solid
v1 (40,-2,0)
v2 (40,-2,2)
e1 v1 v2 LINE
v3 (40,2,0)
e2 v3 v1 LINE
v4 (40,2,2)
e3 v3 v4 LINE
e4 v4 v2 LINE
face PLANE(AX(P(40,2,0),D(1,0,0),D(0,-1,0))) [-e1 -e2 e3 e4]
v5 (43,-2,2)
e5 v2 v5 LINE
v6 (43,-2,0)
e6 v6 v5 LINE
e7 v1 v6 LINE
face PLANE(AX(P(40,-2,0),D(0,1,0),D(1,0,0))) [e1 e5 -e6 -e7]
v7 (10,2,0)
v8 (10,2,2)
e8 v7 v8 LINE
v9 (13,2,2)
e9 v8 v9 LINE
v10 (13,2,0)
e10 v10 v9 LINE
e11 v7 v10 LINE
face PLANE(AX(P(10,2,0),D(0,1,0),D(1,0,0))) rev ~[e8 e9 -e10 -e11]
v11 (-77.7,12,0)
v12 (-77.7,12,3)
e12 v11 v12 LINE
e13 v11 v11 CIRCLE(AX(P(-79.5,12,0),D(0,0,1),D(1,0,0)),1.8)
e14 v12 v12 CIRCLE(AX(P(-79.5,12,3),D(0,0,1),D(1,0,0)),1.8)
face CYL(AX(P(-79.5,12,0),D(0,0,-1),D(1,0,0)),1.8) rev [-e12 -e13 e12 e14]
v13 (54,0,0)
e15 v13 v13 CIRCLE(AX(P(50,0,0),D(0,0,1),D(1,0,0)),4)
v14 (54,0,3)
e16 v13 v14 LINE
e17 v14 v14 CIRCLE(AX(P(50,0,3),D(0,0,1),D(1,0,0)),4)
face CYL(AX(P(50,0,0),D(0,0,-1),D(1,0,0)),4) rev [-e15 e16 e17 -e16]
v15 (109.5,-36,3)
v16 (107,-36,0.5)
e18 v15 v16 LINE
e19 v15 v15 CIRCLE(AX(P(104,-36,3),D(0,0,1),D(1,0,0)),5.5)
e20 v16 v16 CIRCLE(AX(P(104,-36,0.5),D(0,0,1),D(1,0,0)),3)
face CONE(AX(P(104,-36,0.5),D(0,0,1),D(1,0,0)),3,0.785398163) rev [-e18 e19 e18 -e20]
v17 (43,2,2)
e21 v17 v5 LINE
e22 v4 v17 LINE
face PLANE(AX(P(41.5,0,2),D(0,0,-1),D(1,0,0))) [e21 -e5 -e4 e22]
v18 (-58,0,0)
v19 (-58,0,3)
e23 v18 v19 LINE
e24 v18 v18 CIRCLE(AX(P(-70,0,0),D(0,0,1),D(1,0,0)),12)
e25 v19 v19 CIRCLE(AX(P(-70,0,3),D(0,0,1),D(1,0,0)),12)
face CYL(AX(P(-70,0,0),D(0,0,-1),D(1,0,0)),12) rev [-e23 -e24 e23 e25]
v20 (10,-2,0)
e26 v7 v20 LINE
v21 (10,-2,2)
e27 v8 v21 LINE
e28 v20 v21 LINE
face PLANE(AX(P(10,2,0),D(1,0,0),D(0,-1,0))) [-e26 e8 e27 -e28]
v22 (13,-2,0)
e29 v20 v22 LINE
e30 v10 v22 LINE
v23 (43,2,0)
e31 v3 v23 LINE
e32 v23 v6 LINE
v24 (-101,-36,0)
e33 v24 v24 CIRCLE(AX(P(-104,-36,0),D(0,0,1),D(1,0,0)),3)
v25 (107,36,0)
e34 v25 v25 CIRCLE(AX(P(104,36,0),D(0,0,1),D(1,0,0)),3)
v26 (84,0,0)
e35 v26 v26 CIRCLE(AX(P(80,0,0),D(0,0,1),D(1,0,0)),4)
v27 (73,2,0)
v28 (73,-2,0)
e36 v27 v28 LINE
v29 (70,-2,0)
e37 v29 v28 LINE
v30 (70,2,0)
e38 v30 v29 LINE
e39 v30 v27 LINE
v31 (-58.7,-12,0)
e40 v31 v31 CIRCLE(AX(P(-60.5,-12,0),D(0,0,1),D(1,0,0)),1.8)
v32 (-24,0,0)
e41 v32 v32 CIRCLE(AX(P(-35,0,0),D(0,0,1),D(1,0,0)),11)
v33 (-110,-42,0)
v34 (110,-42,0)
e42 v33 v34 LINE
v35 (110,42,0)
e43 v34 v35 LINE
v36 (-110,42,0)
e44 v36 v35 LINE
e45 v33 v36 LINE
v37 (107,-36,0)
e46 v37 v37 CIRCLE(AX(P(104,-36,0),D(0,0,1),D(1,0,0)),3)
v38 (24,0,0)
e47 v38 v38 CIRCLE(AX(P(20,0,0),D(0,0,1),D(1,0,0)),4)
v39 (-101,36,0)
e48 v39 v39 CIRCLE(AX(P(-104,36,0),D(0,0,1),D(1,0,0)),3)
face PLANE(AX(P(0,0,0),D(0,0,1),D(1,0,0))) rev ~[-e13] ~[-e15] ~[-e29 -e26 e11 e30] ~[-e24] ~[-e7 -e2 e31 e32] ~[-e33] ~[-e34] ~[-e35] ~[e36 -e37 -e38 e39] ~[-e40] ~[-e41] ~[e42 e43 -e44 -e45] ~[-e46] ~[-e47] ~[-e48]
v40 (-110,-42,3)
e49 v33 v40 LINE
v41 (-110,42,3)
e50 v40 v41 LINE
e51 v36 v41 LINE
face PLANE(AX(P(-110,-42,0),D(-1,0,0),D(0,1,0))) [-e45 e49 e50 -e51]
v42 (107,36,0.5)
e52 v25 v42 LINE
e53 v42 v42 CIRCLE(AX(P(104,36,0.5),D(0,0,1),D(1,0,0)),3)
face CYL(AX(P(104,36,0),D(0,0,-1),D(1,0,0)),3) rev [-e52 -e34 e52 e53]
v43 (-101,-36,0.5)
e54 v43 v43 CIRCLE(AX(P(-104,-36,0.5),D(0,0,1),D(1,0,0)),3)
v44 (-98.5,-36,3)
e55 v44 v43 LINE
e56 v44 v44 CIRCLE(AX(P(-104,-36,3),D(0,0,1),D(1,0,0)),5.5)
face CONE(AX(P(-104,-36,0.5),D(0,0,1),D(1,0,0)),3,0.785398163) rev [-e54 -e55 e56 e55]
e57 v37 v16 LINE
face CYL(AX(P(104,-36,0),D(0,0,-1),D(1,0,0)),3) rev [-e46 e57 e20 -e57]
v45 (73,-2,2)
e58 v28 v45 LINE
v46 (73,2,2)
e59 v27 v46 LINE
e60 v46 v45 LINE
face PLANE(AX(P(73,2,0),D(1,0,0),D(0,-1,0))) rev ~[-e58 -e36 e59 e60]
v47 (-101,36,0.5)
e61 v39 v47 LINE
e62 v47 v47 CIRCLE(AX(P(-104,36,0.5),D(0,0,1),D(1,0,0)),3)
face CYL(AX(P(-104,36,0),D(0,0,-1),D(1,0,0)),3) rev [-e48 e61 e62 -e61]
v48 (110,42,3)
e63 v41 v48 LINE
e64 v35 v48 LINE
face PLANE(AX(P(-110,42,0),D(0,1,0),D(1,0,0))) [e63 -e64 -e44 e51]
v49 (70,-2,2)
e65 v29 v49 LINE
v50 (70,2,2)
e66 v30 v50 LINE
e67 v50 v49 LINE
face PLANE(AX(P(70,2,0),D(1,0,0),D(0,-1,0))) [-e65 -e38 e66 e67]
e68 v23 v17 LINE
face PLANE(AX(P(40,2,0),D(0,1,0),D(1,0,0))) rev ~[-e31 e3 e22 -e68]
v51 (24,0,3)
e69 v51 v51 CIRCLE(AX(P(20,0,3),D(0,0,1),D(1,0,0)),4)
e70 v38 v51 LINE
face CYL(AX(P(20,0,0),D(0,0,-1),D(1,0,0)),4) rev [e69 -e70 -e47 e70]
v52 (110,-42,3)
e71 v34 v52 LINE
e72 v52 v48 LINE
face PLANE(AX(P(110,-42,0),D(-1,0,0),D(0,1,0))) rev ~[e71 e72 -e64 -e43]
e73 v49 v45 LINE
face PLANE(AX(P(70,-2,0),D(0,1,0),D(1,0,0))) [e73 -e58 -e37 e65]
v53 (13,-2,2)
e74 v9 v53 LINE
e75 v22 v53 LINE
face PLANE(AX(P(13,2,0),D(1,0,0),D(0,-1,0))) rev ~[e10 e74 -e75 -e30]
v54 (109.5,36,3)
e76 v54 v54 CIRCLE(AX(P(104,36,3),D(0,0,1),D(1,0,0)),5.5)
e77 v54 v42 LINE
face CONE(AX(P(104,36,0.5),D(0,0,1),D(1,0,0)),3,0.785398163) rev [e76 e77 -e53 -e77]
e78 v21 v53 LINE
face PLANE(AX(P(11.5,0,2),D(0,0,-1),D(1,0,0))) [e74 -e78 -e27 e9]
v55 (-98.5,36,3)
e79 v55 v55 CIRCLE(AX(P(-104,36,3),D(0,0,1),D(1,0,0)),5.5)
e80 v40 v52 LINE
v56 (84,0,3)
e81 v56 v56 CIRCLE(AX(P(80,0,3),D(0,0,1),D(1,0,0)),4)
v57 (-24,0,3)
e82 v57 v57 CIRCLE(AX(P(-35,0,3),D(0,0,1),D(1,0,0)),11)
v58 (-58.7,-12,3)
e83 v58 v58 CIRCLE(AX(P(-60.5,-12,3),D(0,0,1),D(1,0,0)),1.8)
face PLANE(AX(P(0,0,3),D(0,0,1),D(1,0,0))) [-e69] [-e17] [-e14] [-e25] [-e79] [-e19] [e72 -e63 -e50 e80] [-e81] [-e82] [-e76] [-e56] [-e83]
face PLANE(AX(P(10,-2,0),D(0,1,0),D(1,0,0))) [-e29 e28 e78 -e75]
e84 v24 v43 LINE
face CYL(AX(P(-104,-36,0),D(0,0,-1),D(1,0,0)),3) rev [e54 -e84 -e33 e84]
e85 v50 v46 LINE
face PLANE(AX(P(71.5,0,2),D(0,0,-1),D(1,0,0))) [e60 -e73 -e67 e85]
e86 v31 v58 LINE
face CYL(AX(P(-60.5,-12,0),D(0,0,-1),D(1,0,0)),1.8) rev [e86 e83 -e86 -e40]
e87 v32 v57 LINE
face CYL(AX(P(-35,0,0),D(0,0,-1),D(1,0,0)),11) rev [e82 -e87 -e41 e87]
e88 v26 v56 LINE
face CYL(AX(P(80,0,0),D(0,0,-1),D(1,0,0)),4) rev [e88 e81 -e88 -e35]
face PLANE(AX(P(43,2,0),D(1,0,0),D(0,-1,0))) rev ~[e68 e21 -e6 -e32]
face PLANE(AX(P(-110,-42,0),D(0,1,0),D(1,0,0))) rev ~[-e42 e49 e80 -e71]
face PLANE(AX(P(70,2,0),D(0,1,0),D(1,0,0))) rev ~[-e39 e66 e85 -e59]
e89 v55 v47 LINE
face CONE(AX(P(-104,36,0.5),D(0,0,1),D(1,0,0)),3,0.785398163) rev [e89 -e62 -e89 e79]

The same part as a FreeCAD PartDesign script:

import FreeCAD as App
import Part
import Sketcher
from FreeCAD import Vector
Q = App.Units.Quantity


def edges_at(feature, points):
    """Names of the edges that pass closest to the given points."""
    edges = feature.Shape.Edges
    near = lambda p: min(range(len(edges)), key=lambda i: edges[i].distToShape(Part.Vertex(*p))[0])
    return sorted({f"Edge{near(p) + 1}" for p in points})

doc = App.newDocument("Part")
body = doc.addObject("PartDesign::Body", "Body")

# Sketch on XY plane
sketch1 = body.newObject("Sketcher::SketchObject", "Sketch")
sketch1.AttachmentSupport = (doc.getObject("XY_Plane"), [""])
sketch1.MapMode = "FlatFace"
sketch1.addGeometry([
    Part.LineSegment(Vector(-110, 42, 0), Vector(-110, -42, 0)),  # 0
    Part.LineSegment(Vector(-110, -42, 0), Vector(110, -42, 0)),  # 1
    Part.LineSegment(Vector(110, -42, 0), Vector(110, 42, 0)),  # 2
    Part.LineSegment(Vector(110, 42, 0), Vector(-110, 42, 0)),  # 3
    Part.Circle(Vector(-104, -36, 0), Vector(0, 0, 1), 3),  # 4
    Part.Circle(Vector(-60.5, -12, 0), Vector(0, 0, 1), 1.8),  # 5
    Part.Circle(Vector(104, -36, 0), Vector(0, 0, 1), 3),  # 6
    Part.Circle(Vector(-70, 0, 0), Vector(0, 0, 1), 12),  # 7
    Part.Circle(Vector(-79.5, 12, 0), Vector(0, 0, 1), 1.8),  # 8
    Part.Circle(Vector(-35, 0, 0), Vector(0, 0, 1), 11),  # 9
    Part.Circle(Vector(-104, 36, 0), Vector(0, 0, 1), 3),  # 10
    Part.Circle(Vector(20, 0, 0), Vector(0, 0, 1), 4),  # 11
    Part.Circle(Vector(50, 0, 0), Vector(0, 0, 1), 4),  # 12
    Part.Circle(Vector(80, 0, 0), Vector(0, 0, 1), 4),  # 13
    Part.Circle(Vector(104, 36, 0), Vector(0, 0, 1), 3),  # 14
], False)
sketch1.addConstraint([
    Sketcher.Constraint("Coincident", 0, 2, 1, 1),
    Sketcher.Constraint("Coincident", 1, 2, 2, 1),
    Sketcher.Constraint("Coincident", 2, 2, 3, 1),
    Sketcher.Constraint("Coincident", 3, 2, 0, 1),
    Sketcher.Constraint("Vertical", 0),
    Sketcher.Constraint("Horizontal", 1),
    Sketcher.Constraint("Vertical", 2),
    Sketcher.Constraint("Horizontal", 3),
    Sketcher.Constraint("Equal", 4, 6),
    Sketcher.Constraint("Equal", 5, 8),
    Sketcher.Constraint("Equal", 6, 10),
    Sketcher.Constraint("Equal", 11, 12),
    Sketcher.Constraint("Equal", 12, 13),
    Sketcher.Constraint("Equal", 10, 14),
    Sketcher.Constraint("Symmetric", 6, 3, 10, 3, -1, 1),
    Sketcher.Constraint("Symmetric", 4, 3, 14, 3, -1, 1),
    Sketcher.Constraint("Symmetric", 0, 2, 2, 2, -1, 1),
    Sketcher.Constraint("Symmetric", 4, 3, 6, 3, -2),
    Sketcher.Constraint("PointOnObject", 7, 3, -1),
    Sketcher.Constraint("PointOnObject", 9, 3, -1),
    Sketcher.Constraint("PointOnObject", 11, 3, -1),
    Sketcher.Constraint("PointOnObject", 12, 3, -1),
    Sketcher.Constraint("PointOnObject", 13, 3, -1),
    Sketcher.Constraint("Diameter", 4, Q("6 mm")),
    Sketcher.Constraint("Diameter", 7, Q("24 mm")),
    Sketcher.Constraint("Diameter", 9, Q("22 mm")),
    Sketcher.Constraint("Diameter", 11, Q("8 mm")),
    Sketcher.Constraint("Diameter", 5, Q("3.6 mm")),
    Sketcher.Constraint("DistanceX", 1, 1, 1, 2, Q("220 mm")),
    Sketcher.Constraint("DistanceY", 0, 2, 0, 1, Q("84 mm")),
    Sketcher.Constraint("DistanceX", 4, 3, -1, 1, Q("104 mm")),
    Sketcher.Constraint("DistanceY", 4, 3, -1, 1, Q("36 mm")),
    Sketcher.Constraint("DistanceY", 5, 3, -1, 1, Q("12 mm")),
    Sketcher.Constraint("DistanceX", 7, 3, -1, 1, Q("70 mm")),
    Sketcher.Constraint("DistanceY", -1, 1, 8, 3, Q("12 mm")),
    Sketcher.Constraint("DistanceX", 9, 3, -1, 1, Q("35 mm")),
    Sketcher.Constraint("DistanceX", -1, 1, 11, 3, Q("20 mm")),
    Sketcher.Constraint("DistanceX", -1, 1, 12, 3, Q("50 mm")),
    Sketcher.Constraint("DistanceX", -1, 1, 13, 3, Q("80 mm")),
    Sketcher.Constraint("DistanceX", 8, 3, 5, 3, Q("19 mm")),
    Sketcher.Constraint("DistanceX", 5, 3, -1, 1, Q("60.5 mm")),
])
pad1 = body.newObject("PartDesign::Pad", "Pad")
pad1.Profile = sketch1
pad1.Length = 3

# Sketch on XY plane
sketch2 = body.newObject("Sketcher::SketchObject", "Sketch001")
sketch2.AttachmentSupport = (doc.getObject("XY_Plane"), [""])
sketch2.MapMode = "FlatFace"
sketch2.addGeometry([
    Part.LineSegment(Vector(10, -2, 0), Vector(10, 2, 0)),  # 0
    Part.LineSegment(Vector(10, 2, 0), Vector(13, 2, 0)),  # 1
    Part.LineSegment(Vector(13, 2, 0), Vector(13, -2, 0)),  # 2
    Part.LineSegment(Vector(13, -2, 0), Vector(10, -2, 0)),  # 3
    Part.LineSegment(Vector(40, -2, 0), Vector(40, 2, 0)),  # 4
    Part.LineSegment(Vector(40, 2, 0), Vector(43, 2, 0)),  # 5
    Part.LineSegment(Vector(43, 2, 0), Vector(43, -2, 0)),  # 6
    Part.LineSegment(Vector(43, -2, 0), Vector(40, -2, 0)),  # 7
    Part.LineSegment(Vector(70, -2, 0), Vector(70, 2, 0)),  # 8
    Part.LineSegment(Vector(70, 2, 0), Vector(73, 2, 0)),  # 9
    Part.LineSegment(Vector(73, 2, 0), Vector(73, -2, 0)),  # 10
    Part.LineSegment(Vector(73, -2, 0), Vector(70, -2, 0)),  # 11
], False)
sketch2.addConstraint([
    Sketcher.Constraint("Coincident", 0, 2, 1, 1),
    Sketcher.Constraint("Coincident", 1, 2, 2, 1),
    Sketcher.Constraint("Coincident", 2, 2, 3, 1),
    Sketcher.Constraint("Coincident", 3, 2, 0, 1),
    Sketcher.Constraint("Coincident", 4, 2, 5, 1),
    Sketcher.Constraint("Coincident", 5, 2, 6, 1),
    Sketcher.Constraint("Coincident", 6, 2, 7, 1),
    Sketcher.Constraint("Coincident", 7, 2, 4, 1),
    Sketcher.Constraint("Coincident", 8, 2, 9, 1),
    Sketcher.Constraint("Coincident", 9, 2, 10, 1),
    Sketcher.Constraint("Coincident", 10, 2, 11, 1),
    Sketcher.Constraint("Coincident", 11, 2, 8, 1),
    Sketcher.Constraint("Vertical", 0),
    Sketcher.Constraint("Horizontal", 1),
    Sketcher.Constraint("Vertical", 2),
    Sketcher.Constraint("Horizontal", 3),
    Sketcher.Constraint("Vertical", 4),
    Sketcher.Constraint("Horizontal", 5),
    Sketcher.Constraint("Vertical", 6),
    Sketcher.Constraint("Horizontal", 7),
    Sketcher.Constraint("Vertical", 8),
    Sketcher.Constraint("Horizontal", 9),
    Sketcher.Constraint("Vertical", 10),
    Sketcher.Constraint("Horizontal", 11),
    Sketcher.Constraint("Horizontal", 1, 2, 4, 2),
    Sketcher.Constraint("Horizontal", 3, 2, 6, 2),
    Sketcher.Constraint("Horizontal", 5, 2, 8, 2),
    Sketcher.Constraint("Horizontal", 7, 2, 10, 2),
    Sketcher.Constraint("Equal", 3, 5),
    Sketcher.Constraint("Equal", 7, 9),
    Sketcher.Constraint("DistanceX", 1, 1, 1, 2, Q("3 mm")),
    Sketcher.Constraint("DistanceY", 0, 1, 0, 2, Q("4 mm")),
    Sketcher.Constraint("DistanceX", -1, 1, 0, 2, Q("10 mm")),
    Sketcher.Constraint("DistanceY", -1, 1, 0, 2, Q("2 mm")),
    Sketcher.Constraint("DistanceX", -1, 1, 4, 2, Q("40 mm")),
    Sketcher.Constraint("DistanceX", -1, 1, 8, 2, Q("70 mm")),
])
pocket1 = body.newObject("PartDesign::Pocket", "Pocket")
pocket1.Profile = sketch2
pocket1.Length = 2
pocket1.Reversed = True
doc.recompute()

chamfer = body.newObject("PartDesign::Chamfer", "Chamfer")
chamfer.Base = (pocket1, edges_at(pocket1, [(-107, -36, 3)]))
chamfer.Size = 2.5
doc.recompute()

chamfer2 = body.newObject("PartDesign::Chamfer", "Chamfer001")
chamfer2.Base = (chamfer, edges_at(chamfer, [(-107, 36, 3)]))
chamfer2.Size = 2.5
doc.recompute()

chamfer3 = body.newObject("PartDesign::Chamfer", "Chamfer002")
chamfer3.Base = (chamfer2, edges_at(chamfer2, [(101, 36, 3)]))
chamfer3.Size = 2.5
doc.recompute()

chamfer4 = body.newObject("PartDesign::Chamfer", "Chamfer003")
chamfer4.Base = (chamfer3, edges_at(chamfer3, [(101, -36, 3)]))
chamfer4.Size = 2.5

doc.recompute()
